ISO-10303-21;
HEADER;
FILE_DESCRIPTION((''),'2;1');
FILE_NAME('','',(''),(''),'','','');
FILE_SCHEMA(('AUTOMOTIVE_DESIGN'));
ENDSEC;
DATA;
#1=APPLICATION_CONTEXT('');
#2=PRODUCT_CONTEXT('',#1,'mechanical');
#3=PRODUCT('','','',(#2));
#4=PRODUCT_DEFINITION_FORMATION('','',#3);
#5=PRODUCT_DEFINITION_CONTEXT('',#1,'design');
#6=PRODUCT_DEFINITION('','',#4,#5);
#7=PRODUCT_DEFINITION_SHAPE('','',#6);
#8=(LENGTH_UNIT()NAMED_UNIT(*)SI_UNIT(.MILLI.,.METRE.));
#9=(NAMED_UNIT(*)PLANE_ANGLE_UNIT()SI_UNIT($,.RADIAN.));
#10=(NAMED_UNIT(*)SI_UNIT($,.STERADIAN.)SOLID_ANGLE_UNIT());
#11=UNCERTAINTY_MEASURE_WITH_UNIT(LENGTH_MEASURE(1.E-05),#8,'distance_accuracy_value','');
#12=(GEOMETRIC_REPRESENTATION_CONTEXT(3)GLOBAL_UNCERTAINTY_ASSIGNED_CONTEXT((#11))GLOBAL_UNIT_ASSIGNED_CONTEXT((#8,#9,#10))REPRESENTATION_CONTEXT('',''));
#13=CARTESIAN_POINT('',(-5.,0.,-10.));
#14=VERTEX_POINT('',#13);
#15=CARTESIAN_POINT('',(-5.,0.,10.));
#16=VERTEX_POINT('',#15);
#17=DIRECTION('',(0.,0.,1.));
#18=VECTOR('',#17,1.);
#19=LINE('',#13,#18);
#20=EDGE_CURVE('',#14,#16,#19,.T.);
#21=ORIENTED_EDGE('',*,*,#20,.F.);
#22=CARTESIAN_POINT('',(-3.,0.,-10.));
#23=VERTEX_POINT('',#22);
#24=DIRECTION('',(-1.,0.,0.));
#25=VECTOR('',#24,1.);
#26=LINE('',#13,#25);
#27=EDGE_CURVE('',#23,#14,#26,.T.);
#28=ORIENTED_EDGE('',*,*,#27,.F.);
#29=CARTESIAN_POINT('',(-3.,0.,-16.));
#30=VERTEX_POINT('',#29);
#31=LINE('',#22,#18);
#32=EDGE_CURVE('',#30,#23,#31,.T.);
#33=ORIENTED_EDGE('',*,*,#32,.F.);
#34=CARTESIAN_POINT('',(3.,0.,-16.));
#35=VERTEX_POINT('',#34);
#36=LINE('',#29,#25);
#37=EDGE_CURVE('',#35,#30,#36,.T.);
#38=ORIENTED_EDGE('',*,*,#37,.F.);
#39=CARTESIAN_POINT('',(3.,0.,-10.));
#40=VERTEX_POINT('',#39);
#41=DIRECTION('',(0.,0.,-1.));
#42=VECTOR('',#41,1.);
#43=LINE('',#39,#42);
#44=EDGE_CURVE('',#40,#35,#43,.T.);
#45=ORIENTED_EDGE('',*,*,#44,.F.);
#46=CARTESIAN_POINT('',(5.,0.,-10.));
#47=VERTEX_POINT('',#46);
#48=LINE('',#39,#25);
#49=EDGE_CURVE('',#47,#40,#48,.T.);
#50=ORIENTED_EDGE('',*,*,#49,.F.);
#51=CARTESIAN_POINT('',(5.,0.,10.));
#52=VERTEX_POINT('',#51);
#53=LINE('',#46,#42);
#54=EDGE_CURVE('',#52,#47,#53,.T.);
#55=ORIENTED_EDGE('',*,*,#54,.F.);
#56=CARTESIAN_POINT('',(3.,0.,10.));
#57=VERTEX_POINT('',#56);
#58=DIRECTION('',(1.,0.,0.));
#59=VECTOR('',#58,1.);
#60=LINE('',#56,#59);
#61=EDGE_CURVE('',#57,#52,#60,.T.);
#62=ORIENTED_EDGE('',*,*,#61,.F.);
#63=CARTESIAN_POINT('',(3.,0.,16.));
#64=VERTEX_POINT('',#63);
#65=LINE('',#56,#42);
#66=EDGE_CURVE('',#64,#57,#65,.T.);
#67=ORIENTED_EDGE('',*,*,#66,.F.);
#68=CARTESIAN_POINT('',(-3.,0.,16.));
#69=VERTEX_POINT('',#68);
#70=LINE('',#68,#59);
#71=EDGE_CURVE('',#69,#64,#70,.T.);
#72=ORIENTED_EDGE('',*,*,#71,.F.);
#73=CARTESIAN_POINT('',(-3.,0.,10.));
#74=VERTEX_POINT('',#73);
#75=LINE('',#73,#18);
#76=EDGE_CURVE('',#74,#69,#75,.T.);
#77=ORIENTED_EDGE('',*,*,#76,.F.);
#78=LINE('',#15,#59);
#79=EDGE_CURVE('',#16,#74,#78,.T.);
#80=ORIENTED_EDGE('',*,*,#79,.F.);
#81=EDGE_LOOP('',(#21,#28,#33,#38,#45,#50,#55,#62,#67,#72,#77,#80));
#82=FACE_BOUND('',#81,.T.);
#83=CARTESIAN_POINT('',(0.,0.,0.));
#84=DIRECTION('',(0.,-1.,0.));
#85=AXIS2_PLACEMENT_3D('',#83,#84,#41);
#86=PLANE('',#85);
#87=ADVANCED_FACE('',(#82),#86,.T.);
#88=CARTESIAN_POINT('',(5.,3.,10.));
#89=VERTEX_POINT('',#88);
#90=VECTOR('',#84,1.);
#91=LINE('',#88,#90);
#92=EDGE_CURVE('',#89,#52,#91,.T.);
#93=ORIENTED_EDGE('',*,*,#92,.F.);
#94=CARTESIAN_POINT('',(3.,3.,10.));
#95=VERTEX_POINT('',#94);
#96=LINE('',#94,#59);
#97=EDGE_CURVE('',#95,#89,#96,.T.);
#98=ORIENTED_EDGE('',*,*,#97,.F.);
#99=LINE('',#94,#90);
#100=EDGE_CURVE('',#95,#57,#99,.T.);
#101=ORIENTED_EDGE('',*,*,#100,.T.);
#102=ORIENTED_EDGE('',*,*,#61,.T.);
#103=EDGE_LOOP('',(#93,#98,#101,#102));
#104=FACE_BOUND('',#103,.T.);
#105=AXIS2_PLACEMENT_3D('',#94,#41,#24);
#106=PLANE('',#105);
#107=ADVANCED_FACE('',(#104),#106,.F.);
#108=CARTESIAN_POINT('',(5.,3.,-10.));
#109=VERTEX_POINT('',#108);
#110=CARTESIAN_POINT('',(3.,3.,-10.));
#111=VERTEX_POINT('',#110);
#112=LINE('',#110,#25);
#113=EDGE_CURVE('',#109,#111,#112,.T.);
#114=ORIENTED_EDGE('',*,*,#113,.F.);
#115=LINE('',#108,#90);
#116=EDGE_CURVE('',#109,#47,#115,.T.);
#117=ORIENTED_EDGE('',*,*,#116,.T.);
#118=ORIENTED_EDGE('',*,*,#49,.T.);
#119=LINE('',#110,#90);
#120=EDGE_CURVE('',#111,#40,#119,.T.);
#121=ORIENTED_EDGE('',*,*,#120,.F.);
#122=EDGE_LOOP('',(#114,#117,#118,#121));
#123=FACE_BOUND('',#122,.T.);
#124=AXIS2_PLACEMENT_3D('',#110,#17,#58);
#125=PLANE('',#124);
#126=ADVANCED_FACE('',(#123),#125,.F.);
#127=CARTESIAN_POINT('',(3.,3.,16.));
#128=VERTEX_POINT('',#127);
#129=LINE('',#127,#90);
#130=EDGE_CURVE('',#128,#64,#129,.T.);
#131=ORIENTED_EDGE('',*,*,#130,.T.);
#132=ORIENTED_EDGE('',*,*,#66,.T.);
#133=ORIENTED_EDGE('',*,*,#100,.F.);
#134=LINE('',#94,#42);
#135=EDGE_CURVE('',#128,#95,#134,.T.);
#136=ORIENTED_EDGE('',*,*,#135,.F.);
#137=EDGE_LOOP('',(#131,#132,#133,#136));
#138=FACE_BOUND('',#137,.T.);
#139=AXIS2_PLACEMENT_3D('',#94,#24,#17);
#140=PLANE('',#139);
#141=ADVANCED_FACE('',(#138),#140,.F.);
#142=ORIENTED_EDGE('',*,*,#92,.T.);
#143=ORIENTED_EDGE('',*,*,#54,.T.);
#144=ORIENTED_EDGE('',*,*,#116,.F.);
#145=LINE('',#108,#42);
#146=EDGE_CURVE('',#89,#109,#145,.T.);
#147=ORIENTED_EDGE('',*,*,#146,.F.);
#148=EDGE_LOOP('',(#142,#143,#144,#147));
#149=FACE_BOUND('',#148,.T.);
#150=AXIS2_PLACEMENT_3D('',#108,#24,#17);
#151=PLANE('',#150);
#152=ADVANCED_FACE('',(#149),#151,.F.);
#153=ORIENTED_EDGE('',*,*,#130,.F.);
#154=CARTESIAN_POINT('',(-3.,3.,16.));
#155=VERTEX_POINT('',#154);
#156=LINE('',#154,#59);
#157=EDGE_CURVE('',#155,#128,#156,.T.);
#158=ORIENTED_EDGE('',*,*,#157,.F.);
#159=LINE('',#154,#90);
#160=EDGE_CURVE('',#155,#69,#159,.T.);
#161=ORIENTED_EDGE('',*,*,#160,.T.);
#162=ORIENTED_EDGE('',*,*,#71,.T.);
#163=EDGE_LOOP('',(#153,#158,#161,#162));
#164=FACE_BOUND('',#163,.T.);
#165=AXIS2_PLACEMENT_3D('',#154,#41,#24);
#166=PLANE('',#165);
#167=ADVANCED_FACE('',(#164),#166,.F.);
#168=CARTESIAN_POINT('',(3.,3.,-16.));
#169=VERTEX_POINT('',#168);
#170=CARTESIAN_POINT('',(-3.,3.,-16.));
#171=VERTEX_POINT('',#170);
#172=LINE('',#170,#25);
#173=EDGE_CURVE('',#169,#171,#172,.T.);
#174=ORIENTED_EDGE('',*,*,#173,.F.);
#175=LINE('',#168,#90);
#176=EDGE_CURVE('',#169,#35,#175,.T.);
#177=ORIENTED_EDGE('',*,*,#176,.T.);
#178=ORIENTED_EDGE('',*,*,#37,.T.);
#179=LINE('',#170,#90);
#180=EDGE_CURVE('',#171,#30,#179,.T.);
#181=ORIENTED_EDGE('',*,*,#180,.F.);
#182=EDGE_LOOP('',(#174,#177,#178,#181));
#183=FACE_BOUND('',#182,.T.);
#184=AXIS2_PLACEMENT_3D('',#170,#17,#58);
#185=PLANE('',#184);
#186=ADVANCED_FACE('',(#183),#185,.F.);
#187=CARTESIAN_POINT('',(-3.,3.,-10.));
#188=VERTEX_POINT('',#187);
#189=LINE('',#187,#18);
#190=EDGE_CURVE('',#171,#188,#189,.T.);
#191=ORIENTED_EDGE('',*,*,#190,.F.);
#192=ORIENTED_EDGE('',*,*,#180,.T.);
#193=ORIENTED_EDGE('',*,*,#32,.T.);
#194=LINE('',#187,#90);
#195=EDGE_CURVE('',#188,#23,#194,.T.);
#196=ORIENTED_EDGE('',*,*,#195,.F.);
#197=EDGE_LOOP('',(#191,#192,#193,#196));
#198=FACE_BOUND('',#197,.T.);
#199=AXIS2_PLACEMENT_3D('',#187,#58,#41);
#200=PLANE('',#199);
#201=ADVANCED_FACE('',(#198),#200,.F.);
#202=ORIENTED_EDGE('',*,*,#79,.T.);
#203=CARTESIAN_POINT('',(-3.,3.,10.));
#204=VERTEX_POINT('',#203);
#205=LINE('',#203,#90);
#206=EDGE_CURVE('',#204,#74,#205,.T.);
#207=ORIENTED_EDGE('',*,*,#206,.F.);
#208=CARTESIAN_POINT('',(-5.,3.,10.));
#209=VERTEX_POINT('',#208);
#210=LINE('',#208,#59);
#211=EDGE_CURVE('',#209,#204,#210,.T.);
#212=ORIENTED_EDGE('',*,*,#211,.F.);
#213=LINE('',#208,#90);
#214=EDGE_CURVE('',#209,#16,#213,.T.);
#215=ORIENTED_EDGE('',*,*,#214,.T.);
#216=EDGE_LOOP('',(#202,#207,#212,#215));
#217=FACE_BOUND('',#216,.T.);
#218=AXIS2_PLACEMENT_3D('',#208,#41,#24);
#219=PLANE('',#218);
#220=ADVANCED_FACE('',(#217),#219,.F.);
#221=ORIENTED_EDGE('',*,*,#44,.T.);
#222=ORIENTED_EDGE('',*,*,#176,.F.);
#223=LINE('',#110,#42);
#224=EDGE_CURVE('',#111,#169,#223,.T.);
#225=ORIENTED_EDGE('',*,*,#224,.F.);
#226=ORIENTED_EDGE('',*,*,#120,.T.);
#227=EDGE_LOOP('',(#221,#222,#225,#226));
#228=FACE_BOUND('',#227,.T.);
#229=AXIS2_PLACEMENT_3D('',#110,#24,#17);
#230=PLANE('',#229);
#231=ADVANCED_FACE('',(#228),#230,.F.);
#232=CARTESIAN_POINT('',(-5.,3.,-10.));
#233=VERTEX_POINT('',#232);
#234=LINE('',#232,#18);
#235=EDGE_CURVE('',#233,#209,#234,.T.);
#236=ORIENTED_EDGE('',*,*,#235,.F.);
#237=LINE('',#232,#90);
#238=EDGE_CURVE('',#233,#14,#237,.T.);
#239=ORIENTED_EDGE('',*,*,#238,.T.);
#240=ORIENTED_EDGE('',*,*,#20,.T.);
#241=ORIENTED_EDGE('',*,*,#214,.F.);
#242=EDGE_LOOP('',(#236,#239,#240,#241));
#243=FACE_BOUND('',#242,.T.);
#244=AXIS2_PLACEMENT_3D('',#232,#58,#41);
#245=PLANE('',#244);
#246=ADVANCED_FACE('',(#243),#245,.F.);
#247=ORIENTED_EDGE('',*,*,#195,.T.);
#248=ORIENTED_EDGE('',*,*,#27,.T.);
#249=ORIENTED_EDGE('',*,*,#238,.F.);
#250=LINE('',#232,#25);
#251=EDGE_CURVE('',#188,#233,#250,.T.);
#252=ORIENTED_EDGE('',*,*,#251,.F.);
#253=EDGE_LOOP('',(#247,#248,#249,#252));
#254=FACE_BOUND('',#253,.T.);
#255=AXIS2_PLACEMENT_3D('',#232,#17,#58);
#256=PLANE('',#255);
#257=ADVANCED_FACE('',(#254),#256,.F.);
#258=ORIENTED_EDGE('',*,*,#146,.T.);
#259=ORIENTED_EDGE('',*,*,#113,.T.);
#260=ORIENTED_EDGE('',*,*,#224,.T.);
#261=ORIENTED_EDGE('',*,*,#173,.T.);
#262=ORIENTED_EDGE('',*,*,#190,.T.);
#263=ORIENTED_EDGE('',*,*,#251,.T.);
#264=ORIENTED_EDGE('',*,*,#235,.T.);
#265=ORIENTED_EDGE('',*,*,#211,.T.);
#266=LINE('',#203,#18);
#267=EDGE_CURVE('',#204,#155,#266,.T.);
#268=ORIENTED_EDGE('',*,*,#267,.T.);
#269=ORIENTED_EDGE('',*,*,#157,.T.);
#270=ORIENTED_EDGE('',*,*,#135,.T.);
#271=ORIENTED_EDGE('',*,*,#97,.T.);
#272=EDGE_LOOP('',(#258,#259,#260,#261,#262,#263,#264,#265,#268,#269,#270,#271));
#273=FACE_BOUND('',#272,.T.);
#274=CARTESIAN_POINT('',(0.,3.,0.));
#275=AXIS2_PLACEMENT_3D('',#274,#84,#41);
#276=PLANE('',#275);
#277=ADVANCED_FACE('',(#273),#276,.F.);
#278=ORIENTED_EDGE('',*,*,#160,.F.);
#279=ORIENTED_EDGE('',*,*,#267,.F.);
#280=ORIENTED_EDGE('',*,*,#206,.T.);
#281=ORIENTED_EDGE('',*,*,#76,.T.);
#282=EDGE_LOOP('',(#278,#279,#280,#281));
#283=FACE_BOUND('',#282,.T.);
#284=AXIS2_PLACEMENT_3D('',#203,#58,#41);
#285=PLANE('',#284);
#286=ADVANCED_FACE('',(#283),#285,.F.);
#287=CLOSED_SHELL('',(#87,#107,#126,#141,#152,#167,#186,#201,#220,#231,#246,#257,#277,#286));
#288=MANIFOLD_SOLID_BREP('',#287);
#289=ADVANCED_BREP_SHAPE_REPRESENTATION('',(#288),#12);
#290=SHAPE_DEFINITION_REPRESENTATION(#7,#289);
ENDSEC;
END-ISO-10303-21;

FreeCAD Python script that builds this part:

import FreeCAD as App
import Part
import Sketcher


def add_polygon(sketch, points):
    """Adds a closed chain of lines whose ends are joined by coincident constraints."""
    first, n = sketch.GeometryCount, len(points)
    for a, b in zip(points, points[1:] + points[:1]):
        sketch.addGeometry(Part.LineSegment(App.Vector(*a, 0), App.Vector(*b, 0)), False)
    for i in range(n):
        sketch.addConstraint(Sketcher.Constraint("Coincident", first + i, 2, first + (i + 1) % n, 1))

doc = App.newDocument("Part")
params = doc.addObject("Spreadsheet::Sheet", "Params")
for row, (alias, value) in enumerate([
    ("sketch1_width", "2 mm"),
    ("sketch1_width2", "6 mm"),
    ("sketch1_height", "20 mm"),
    ("pad1_length", "3 mm"),
], start=1):
    params.set(f"A{row}", alias)
    params.set(f"B{row}", "=" + value)
    params.setAlias(f"B{row}", alias)

body = doc.addObject("PartDesign::Body", "Body")

# Sketch on XZ plane
sketch1 = body.newObject("Sketcher::SketchObject", "Sketch")
sketch1.AttachmentSupport = (doc.getObject("XZ_Plane"), [""])
sketch1.MapMode = "FlatFace"
add_polygon(sketch1, [(-3, -10), (-5, -10), (-5, 10), (-3, 10), (-3, 16), (3, 16), (3, 10), (5, 10), (5, -10), (3, -10), (3, -16), (-3, -16)])  # lines 0-11
sketch1.addConstraint([
    Sketcher.Constraint("Horizontal", 0),
    Sketcher.Constraint("Vertical", 1),
    Sketcher.Constraint("Horizontal", 2),
    Sketcher.Constraint("Vertical", 3),
    Sketcher.Constraint("Horizontal", 4),
    Sketcher.Constraint("Vertical", 5),
    Sketcher.Constraint("Horizontal", 6),
    Sketcher.Constraint("Vertical", 7),
    Sketcher.Constraint("Horizontal", 8),
    Sketcher.Constraint("Vertical", 9),
    Sketcher.Constraint("Horizontal", 10),
    Sketcher.Constraint("Vertical", 11),
    Sketcher.Constraint("Symmetric", 0, 2, 6, 2, -1, 1),
    Sketcher.Constraint("Symmetric", 2, 2, 8, 2, -1, 1),
    Sketcher.Constraint("Symmetric", 4, 2, 10, 2, -1, 1),
    Sketcher.Constraint("Symmetric", 2, 2, 5, 2, -2),
    Sketcher.Constraint("Equal", 10, 3),
    Sketcher.Constraint("DistanceX", 0, 2, 0, 1, 2.0),
    Sketcher.Constraint("DistanceX", 4, 1, 4, 2, 6.0),
    Sketcher.Constraint("DistanceY", 1, 1, 1, 2, 20.0),
])
sketch1.setExpression("Constraints[29]", "Params.sketch1_width")
sketch1.setExpression("Constraints[30]", "Params.sketch1_width2")
sketch1.setExpression("Constraints[31]", "Params.sketch1_height")
pad1 = body.newObject("PartDesign::Pad", "Pad")
pad1.Profile = sketch1
pad1.setExpression("Length", "Params.pad1_length")
pad1.Reversed = True

doc.recompute()
